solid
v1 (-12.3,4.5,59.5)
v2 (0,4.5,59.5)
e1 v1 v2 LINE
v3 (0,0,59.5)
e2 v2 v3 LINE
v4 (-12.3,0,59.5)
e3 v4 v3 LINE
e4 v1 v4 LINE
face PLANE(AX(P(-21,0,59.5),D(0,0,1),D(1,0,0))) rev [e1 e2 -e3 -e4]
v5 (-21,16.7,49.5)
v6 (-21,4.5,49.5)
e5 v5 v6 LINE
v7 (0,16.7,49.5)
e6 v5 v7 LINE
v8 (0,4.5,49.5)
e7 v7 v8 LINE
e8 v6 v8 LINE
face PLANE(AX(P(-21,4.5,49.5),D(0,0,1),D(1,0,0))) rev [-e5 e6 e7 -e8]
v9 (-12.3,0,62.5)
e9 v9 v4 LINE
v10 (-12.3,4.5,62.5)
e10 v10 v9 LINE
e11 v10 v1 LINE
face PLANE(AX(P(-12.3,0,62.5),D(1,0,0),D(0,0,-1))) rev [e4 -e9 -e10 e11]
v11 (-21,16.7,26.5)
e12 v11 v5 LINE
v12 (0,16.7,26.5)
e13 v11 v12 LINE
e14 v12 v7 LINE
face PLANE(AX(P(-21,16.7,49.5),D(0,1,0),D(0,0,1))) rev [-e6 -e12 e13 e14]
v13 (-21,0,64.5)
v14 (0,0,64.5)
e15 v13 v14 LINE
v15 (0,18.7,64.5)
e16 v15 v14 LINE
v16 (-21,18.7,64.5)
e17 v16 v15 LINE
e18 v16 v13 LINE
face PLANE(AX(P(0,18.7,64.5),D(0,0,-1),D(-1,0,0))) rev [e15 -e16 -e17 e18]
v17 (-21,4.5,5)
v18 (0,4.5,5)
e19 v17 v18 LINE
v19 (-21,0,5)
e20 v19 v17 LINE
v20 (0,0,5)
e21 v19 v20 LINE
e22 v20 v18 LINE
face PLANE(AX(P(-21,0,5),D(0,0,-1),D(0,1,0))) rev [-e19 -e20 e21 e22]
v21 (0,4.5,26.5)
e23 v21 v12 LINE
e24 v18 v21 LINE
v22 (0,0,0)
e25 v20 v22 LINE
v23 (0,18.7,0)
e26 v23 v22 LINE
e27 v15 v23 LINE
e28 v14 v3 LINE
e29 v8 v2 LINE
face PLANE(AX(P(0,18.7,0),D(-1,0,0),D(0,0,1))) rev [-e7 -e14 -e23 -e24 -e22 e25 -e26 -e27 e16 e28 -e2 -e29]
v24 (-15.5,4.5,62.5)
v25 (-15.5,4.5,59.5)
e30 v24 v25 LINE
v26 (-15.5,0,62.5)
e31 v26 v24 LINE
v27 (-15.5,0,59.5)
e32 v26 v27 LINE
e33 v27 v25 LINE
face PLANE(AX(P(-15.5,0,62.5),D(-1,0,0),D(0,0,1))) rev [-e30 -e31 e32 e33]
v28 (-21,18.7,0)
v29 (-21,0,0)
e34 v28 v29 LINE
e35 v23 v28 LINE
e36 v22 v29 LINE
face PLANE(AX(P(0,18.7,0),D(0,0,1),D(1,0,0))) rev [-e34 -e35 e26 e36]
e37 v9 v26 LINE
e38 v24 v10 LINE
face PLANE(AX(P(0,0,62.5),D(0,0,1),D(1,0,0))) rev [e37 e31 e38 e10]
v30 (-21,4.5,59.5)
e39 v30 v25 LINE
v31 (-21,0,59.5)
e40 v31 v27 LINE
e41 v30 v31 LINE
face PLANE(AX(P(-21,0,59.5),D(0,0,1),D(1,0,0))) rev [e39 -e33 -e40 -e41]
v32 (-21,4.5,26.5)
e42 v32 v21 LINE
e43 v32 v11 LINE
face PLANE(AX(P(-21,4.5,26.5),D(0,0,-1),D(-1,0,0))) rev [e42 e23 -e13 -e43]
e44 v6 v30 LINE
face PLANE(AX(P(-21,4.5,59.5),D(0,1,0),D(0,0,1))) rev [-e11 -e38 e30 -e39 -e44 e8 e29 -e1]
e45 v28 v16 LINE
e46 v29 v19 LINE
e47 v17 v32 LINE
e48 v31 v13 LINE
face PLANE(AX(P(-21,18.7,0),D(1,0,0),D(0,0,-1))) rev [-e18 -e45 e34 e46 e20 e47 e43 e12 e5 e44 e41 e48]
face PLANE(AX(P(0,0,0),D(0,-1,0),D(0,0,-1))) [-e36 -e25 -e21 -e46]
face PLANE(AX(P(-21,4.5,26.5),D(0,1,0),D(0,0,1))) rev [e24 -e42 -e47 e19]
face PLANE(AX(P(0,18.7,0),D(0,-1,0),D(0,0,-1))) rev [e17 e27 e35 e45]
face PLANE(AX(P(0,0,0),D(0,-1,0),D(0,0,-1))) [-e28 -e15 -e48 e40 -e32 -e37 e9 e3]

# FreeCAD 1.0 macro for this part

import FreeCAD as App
import Part
import Sketcher
from FreeCAD import Vector


def add_polygon(sketch, points):
    """Adds a closed chain of lines whose ends are joined by coincident constraints."""
    first, n = sketch.GeometryCount, len(points)
    for a, b in zip(points, points[1:] + points[:1]):
        sketch.addGeometry(Part.LineSegment(App.Vector(*a, 0), App.Vector(*b, 0)), False)
    for i in range(n):
        sketch.addConstraint(Sketcher.Constraint("Coincident", first + i, 2, first + (i + 1) % n, 1))

doc = App.newDocument("Part")
body = doc.addObject("PartDesign::Body", "Body")

sketch1 = doc.addObject("Sketcher::SketchObject", "Sketch")
body.addObject(sketch1)
sketch1.AttachmentSupport = (doc.XZ_Plane, [""])
sketch1.MapMode = "FlatFace"
add_polygon(sketch1, [(-21, 0), (-21, 64), (0, 64), (0, 0)])
sketch1.addConstraint(Sketcher.Constraint("Vertical", 0))
sketch1.addConstraint(Sketcher.Constraint("Horizontal", 1))
sketch1.addConstraint(Sketcher.Constraint("Vertical", 2))
sketch1.addConstraint(Sketcher.Constraint("Horizontal", 3))
sketch1.addConstraint(Sketcher.Constraint("Coincident", 2, 2, -1, 1))
sketch1.addConstraint(Sketcher.Constraint("DistanceX", 1, 1, 1, 2, 21.0))
sketch1.addConstraint(Sketcher.Constraint("DistanceY", 0, 1, 0, 2, 64.5))
pad1 = doc.addObject("PartDesign::Pad", "Pad")
body.addObject(pad1)
pad1.Profile = sketch1
pad1.Length = 18.7
pad1.Reversed = True

sketch2 = doc.addObject("Sketcher::SketchObject", "Sketch001")
body.addObject(sketch2)
sketch2.AttachmentSupport = (doc.YZ_Plane, [""])
sketch2.MapMode = "FlatFace"
add_polygon(sketch2, [(0, 59.5), (0, 5), (4.5, 5), (4.5, 26.5), (16.7, 26.5), (16.7, 49.5), (4.5, 49.5), (4.5, 59.5)])
sketch2.addConstraint(Sketcher.Constraint("Vertical", 0))
sketch2.addConstraint(Sketcher.Constraint("Horizontal", 1))
sketch2.addConstraint(Sketcher.Constraint("Vertical", 2))
sketch2.addConstraint(Sketcher.Constraint("Horizontal", 3))
sketch2.addConstraint(Sketcher.Constraint("Vertical", 4))
sketch2.addConstraint(Sketcher.Constraint("Horizontal", 5))
sketch2.addConstraint(Sketcher.Constraint("Vertical", 6))
sketch2.addConstraint(Sketcher.Constraint("Horizontal", 7))
sketch2.addConstraint(Sketcher.Constraint("PointOnObject", 0, 2, -2))
sketch2.addConstraint(Sketcher.Constraint("Vertical", 2, 2, 5, 2))
sketch2.addConstraint(Sketcher.Constraint("DistanceY", 4, 1, 4, 2, 23.0))
sketch2.addConstraint(Sketcher.Constraint("DistanceY", 6, 1, 6, 2, 10.0))
sketch2.addConstraint(Sketcher.Constraint("DistanceX", 1, 1, 1, 2, 4.5))
sketch2.addConstraint(Sketcher.Constraint("DistanceX", 3, 1, 3, 2, 12.2))
sketch2.addConstraint(Sketcher.Constraint("DistanceY", 0, 2, 0, 1, 54.5))
sketch2.addConstraint(Sketcher.Constraint("DistanceY", -1, 1, 0, 2, 5.0))
pocket1 = doc.addObject("PartDesign::Pocket", "Pocket")
body.addObject(pocket1)
pocket1.Profile = sketch2
pocket1.Type = "ThroughAll"

sketch3 = doc.addObject("Sketcher::SketchObject", "Sketch002")
body.addObject(sketch3)
sketch3.AttachmentSupport = (doc.XY_Plane, [""])
sketch3.MapMode = "FlatFace"
sketch3.AttachmentOffset = App.Placement(Vector(0, 0, 59.5), App.Rotation())
add_polygon(sketch3, [(-12.3, 4.5), (-12.3, 0), (-15.5, 0), (-15.5, 4.5)])
sketch3.addConstraint(Sketcher.Constraint("Vertical", 0))
sketch3.addConstraint(Sketcher.Constraint("Horizontal", 1))
sketch3.addConstraint(Sketcher.Constraint("Vertical", 2))
sketch3.addConstraint(Sketcher.Constraint("Horizontal", 3))
sketch3.addConstraint(Sketcher.Constraint("PointOnObject", 0, 2, -1))
sketch3.addConstraint(Sketcher.Constraint("DistanceX", 1, 2, 1, 1, 3.2))
sketch3.addConstraint(Sketcher.Constraint("DistanceY", 0, 2, 0, 1, 4.5))
sketch3.addConstraint(Sketcher.Constraint("DistanceX", 0, 2, -1, 1, 12.3))
pocket2 = doc.addObject("PartDesign::Pocket", "Pocket001")
body.addObject(pocket2)
pocket2.Profile = sketch3
pocket2.Length = 3
pocket2.Reversed = True

doc.recompute()
